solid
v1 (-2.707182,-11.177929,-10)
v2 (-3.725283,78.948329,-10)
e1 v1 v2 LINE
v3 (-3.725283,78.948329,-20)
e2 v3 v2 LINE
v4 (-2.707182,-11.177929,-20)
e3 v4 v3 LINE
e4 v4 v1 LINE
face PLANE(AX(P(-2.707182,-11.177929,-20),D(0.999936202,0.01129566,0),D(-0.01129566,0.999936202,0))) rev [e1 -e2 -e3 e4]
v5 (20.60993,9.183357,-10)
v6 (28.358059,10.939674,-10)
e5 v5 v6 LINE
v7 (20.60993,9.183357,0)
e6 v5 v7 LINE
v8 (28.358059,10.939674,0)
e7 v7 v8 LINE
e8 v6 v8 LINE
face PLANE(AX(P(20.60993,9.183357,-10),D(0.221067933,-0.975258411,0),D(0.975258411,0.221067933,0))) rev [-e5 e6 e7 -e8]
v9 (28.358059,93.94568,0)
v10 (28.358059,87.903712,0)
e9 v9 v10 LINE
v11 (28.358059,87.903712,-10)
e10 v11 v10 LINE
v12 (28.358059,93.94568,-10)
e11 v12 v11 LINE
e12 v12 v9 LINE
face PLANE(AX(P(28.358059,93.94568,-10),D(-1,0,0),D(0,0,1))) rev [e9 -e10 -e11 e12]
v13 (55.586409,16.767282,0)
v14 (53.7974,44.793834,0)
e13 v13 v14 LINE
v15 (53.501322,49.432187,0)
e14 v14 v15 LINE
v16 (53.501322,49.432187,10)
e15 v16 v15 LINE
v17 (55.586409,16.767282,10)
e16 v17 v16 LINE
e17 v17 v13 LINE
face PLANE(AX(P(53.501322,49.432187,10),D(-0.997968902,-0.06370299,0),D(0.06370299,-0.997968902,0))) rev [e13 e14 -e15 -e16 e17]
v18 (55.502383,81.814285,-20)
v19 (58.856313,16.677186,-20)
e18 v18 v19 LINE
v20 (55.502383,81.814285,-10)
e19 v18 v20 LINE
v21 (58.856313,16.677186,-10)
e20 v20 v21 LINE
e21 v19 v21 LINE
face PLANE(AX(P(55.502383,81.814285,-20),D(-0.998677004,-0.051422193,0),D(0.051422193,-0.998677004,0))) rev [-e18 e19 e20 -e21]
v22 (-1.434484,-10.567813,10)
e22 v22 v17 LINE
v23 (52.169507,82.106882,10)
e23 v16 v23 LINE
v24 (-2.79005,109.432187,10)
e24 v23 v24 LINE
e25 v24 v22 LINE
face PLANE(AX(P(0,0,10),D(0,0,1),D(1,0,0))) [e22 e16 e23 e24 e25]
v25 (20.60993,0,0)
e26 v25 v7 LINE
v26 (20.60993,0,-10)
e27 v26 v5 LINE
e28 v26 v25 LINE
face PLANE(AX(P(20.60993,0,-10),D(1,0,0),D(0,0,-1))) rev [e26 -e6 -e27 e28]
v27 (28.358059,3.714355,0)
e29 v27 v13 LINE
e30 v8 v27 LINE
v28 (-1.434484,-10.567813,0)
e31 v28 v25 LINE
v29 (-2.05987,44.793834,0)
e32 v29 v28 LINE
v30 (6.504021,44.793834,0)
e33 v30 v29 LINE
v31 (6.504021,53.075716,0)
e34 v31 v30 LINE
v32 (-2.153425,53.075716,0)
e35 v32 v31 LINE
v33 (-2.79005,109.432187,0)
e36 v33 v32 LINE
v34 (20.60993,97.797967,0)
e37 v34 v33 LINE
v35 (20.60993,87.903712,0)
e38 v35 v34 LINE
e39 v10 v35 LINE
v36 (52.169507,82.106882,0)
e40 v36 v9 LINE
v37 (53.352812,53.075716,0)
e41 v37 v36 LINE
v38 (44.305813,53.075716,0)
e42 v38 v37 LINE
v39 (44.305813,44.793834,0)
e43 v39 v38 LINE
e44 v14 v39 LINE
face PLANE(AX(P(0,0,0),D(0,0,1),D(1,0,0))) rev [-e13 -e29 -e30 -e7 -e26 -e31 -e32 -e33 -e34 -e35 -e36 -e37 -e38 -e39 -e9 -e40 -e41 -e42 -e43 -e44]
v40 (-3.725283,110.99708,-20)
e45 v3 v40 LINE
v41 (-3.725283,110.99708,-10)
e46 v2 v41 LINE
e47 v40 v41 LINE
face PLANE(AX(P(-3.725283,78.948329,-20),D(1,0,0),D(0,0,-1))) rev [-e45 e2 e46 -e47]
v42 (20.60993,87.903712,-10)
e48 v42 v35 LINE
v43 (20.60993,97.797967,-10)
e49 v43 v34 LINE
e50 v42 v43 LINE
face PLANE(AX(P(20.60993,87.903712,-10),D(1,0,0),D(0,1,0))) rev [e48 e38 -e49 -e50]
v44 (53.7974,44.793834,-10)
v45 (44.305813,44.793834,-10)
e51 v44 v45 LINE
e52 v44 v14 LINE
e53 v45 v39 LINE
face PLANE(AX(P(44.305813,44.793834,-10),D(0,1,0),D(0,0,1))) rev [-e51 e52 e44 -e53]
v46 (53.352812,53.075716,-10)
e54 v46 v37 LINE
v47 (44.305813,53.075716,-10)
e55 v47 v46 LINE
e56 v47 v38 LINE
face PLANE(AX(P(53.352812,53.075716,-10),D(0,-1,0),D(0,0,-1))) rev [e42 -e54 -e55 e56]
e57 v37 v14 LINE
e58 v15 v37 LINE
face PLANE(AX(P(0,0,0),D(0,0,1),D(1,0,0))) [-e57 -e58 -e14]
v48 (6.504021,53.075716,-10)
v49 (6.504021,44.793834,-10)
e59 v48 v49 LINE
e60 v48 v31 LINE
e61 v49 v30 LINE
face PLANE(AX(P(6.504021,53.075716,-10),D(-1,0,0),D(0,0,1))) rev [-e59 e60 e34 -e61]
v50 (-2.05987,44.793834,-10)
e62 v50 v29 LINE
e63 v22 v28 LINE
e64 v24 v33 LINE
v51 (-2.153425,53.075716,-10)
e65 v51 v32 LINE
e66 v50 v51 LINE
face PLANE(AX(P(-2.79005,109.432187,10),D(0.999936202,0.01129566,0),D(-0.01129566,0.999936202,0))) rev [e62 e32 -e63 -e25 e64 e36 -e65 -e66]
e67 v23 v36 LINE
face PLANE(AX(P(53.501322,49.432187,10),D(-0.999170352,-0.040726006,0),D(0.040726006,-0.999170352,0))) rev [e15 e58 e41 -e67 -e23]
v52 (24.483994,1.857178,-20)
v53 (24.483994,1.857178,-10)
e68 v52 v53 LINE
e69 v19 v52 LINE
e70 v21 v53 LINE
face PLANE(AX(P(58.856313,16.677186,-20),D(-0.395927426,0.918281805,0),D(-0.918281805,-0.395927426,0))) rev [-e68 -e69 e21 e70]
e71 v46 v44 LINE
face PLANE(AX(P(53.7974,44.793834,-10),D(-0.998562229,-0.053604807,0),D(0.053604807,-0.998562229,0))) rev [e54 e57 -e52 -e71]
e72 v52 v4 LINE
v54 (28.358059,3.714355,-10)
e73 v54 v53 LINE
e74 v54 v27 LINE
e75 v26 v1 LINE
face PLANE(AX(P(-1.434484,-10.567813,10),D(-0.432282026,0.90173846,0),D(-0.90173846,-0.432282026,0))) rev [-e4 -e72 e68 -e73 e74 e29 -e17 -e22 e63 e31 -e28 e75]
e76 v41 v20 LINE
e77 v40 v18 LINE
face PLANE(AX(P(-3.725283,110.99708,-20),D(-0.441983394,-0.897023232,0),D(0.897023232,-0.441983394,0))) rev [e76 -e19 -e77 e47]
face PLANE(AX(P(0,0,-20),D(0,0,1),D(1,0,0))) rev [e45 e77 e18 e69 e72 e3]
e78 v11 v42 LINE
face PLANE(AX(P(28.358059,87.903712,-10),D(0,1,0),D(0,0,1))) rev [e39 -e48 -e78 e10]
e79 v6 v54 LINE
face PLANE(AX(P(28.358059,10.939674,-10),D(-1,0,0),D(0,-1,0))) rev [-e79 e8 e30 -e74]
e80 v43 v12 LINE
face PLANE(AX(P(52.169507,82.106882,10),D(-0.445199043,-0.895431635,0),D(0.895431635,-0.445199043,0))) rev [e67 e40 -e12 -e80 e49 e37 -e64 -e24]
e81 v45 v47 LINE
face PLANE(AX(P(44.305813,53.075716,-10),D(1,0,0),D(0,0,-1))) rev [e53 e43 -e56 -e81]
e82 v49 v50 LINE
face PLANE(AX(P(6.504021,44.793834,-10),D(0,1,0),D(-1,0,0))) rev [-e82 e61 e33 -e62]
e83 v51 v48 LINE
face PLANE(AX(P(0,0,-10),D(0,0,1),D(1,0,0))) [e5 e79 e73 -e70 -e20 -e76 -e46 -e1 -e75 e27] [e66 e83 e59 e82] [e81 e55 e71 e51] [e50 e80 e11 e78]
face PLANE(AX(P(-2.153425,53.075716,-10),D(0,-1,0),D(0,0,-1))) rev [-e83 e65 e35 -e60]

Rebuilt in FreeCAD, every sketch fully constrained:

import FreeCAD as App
import Part
import Sketcher
from FreeCAD import Vector
Q = App.Units.Quantity


def add_polygon(sketch, points):
    """Adds a closed chain of lines whose ends are joined by coincident constraints."""
    first, n = sketch.GeometryCount, len(points)
    for a, b in zip(points, points[1:] + points[:1]):
        sketch.addGeometry(Part.LineSegment(App.Vector(*a, 0), App.Vector(*b, 0)), False)
    for i in range(n):
        sketch.addConstraint(Sketcher.Constraint("Coincident", first + i, 2, first + (i + 1) % n, 1))

doc = App.newDocument("Part")
params = doc.addObject("Spreadsheet::Sheet", "Params")
for row, (alias, value) in enumerate([
    ("pad1_length", "10 mm"),
    ("pad2_length", "10 mm"),
    ("pad3_length", "10 mm"),
], start=1):
    params.set(f"A{row}", alias)
    params.set(f"B{row}", "=" + value)
    params.setAlias(f"B{row}", alias)

body = doc.addObject("PartDesign::Body", "Body")

# Sketch on XY plane
sketch1 = body.newObject("Sketcher::SketchObject", "Sketch")
sketch1.AttachmentSupport = (doc.getObject("XY_Plane"), [""])
sketch1.MapMode = "FlatFace"
add_polygon(sketch1, [(-3, 109), (-1, -11), (56, 17), (54, 49), (52, 82)])  # lines 0-4
sketch1.addConstraint(Sketcher.Constraint("DistanceY", 0, 2, 2, 2, Q("60 mm")))
sketch1.addConstraint(Sketcher.Constraint("DistanceY", 2, 2, 4, 2, Q("60 mm")))
sketch1.addConstraint(Sketcher.Constraint("DistanceX", 3, 2, 1, 2, Q("3.416902 mm")))
sketch1.addConstraint(Sketcher.Constraint("DistanceY", 1, 2, 3, 2, Q("65.3396 mm")))
sketch1.addConstraint(Sketcher.Constraint("DistanceX", -1, 1, 1, 2, Q("55.586409 mm")))
sketch1.addConstraint(Sketcher.Constraint("DistanceX", -1, 1, 2, 2, Q("53.501322 mm")))
sketch1.addConstraint(Sketcher.Constraint("DistanceX", 4, 2, -1, 1, Q("2.79005 mm")))
sketch1.addConstraint(Sketcher.Constraint("DistanceX", 0, 2, 3, 2, Q("53.603991 mm")))
sketch1.addConstraint(Sketcher.Constraint("Distance", 1, Q("63.234402 mm")))
sketch1.addConstraint(Sketcher.Constraint("DistanceY", 0, 2, -1, 1, Q("10.567813 mm")))
pad1 = body.newObject("PartDesign::Pad", "Pad")
pad1.Profile = sketch1
pad1.setExpression("Length", "Params.pad1_length")

# Sketch on XY plane
sketch2 = body.newObject("Sketcher::SketchObject", "Sketch001")
sketch2.AttachmentSupport = (doc.getObject("XY_Plane"), [""])
sketch2.MapMode = "FlatFace"
add_polygon(sketch2, [(-2, 53), (7, 53), (7, 45), (-2, 45)])  # lines 0-3
add_polygon(sketch2, [(44, 53), (53, 53), (54, 45), (44, 45)])  # lines 4-7
add_polygon(sketch2, [(21, 0), (21, 9), (28, 11), (28, 4)])  # lines 8-11
add_polygon(sketch2, [(28, 94), (28, 88), (21, 88), (21, 98)])  # lines 12-15
sketch2.addConstraint(Sketcher.Constraint("Horizontal", 0))
sketch2.addConstraint(Sketcher.Constraint("Vertical", 1))
sketch2.addConstraint(Sketcher.Constraint("Horizontal", 2))
sketch2.addConstraint(Sketcher.Constraint("Horizontal", 4))
sketch2.addConstraint(Sketcher.Constraint("Horizontal", 6))
sketch2.addConstraint(Sketcher.Constraint("Vertical", 7))
sketch2.addConstraint(Sketcher.Constraint("Vertical", 8))
sketch2.addConstraint(Sketcher.Constraint("Vertical", 10))
sketch2.addConstraint(Sketcher.Constraint("Vertical", 12))
sketch2.addConstraint(Sketcher.Constraint("Horizontal", 13))
sketch2.addConstraint(Sketcher.Constraint("Vertical", 14))
sketch2.addConstraint(Sketcher.Constraint("PointOnObject", 11, 2, -1))
sketch2.addConstraint(Sketcher.Constraint("Horizontal", 3, 2, 4, 2))
sketch2.addConstraint(Sketcher.Constraint("Horizontal", 2, 2, 5, 2))
sketch2.addConstraint(Sketcher.Constraint("Vertical", 10, 2, 12, 2))
sketch2.addConstraint(Sketcher.Constraint("Vertical", 11, 2, 13, 2))
sketch2.addConstraint(Sketcher.Constraint("DistanceX", 4, 1, 4, 2, Q("9.046998 mm")))
sketch2.addConstraint(Sketcher.Constraint("DistanceY", 10, 2, 8, 2, Q("5.469001 mm")))
sketch2.addConstraint(Sketcher.Constraint("DistanceX", 2, 2, 2, 1, Q("8.563891 mm")))
sketch2.addConstraint(Sketcher.Constraint("DistanceX", 13, 2, 13, 1, Q("7.748129 mm")))
sketch2.addConstraint(Sketcher.Constraint("DistanceY", 10, 2, 10, 1, Q("7.225318 mm")))
sketch2.addConstraint(Sketcher.Constraint("DistanceY", 12, 2, 12, 1, Q("6.041968 mm")))
sketch2.addConstraint(Sketcher.Constraint("DistanceX", -1, 1, 5, 2, Q("53.7974 mm")))
sketch2.addConstraint(Sketcher.Constraint("DistanceX", 2, 2, 8, 2, Q("22.6698 mm")))
sketch2.addConstraint(Sketcher.Constraint("Distance", 3, Q("8.282411 mm")))
sketch2.addConstraint(Sketcher.Constraint("DistanceX", 0, 1, 0, 2, Q("8.657446 mm")))
sketch2.addConstraint(Sketcher.Constraint("DistanceX", 6, 2, 6, 1, Q("9.491586 mm")))
sketch2.addConstraint(Sketcher.Constraint("DistanceY", 8, 1, 8, 2, Q("9.183357 mm")))
sketch2.addConstraint(Sketcher.Constraint("DistanceY", 14, 1, 14, 2, Q("9.894255 mm")))
sketch2.addConstraint(Sketcher.Constraint("DistanceX", -1, 1, 0, 2, Q("6.504021 mm")))
sketch2.addConstraint(Sketcher.Constraint("DistanceY", -1, 1, 12, 2, Q("87.903712 mm")))
sketch2.addConstraint(Sketcher.Constraint("DistanceY", 8, 2, 0, 2, Q("43.89236 mm")))
pad2 = body.newObject("PartDesign::Pad", "Pad001")
pad2.Profile = sketch2
pad2.setExpression("Length", "Params.pad2_length")
pad2.Reversed = True

# Sketch on XY plane
sketch3 = body.newObject("Sketcher::SketchObject", "Sketch002")
sketch3.AttachmentSupport = (doc.getObject("XY_Plane"), [""])
sketch3.MapMode = "FlatFace"
sketch3.AttachmentOffset = App.Placement(Vector(0, 0, -10), App.Rotation())
add_polygon(sketch3, [(24.483994, 1.857178), (-2.707182, -11.177929), (-3.725283, 78.948329), (-3.725283, 110.99708), (55.502383, 81.814285), (58.856313, 16.677186)])  # lines 0-5
sketch3.addConstraint(Sketcher.Constraint("Vertical", 2))
sketch3.addConstraint(Sketcher.Constraint("DistanceY", 2, 1, 2, 2, Q("32.048751 mm")))
sketch3.addConstraint(Sketcher.Constraint("DistanceX", 1, 2, 0, 2, Q("1.0181 mm")))
sketch3.addConstraint(Sketcher.Constraint("DistanceY", 4, 2, 3, 2, Q("65.137099 mm")))
sketch3.addConstraint(Sketcher.Constraint("DistanceY", 5, 2, 2, 2, Q("109.139902 mm")))
sketch3.addConstraint(Sketcher.Constraint("Distance", 4, Q("65.22339 mm")))
sketch3.addConstraint(Sketcher.Constraint("DistanceY", 0, 2, -1, 1, Q("11.177929 mm")))
sketch3.addConstraint(Sketcher.Constraint("DistanceY", -1, 1, 1, 2, Q("78.948329 mm")))
sketch3.addConstraint(Sketcher.Constraint("DistanceX", 5, 2, 4, 2, Q("34.372318 mm")))
sketch3.addConstraint(Sketcher.Constraint("Distance", 0, Q("30.154172 mm")))
sketch3.addConstraint(Sketcher.Constraint("Distance", 3, Q("66.026903 mm")))
sketch3.addConstraint(Sketcher.Constraint("DistanceX", 0, 2, -1, 1, Q("2.707182 mm")))
pad3 = body.newObject("PartDesign::Pad", "Pad002")
pad3.Profile = sketch3
pad3.setExpression("Length", "Params.pad3_length")
pad3.Reversed = True

doc.recompute()
